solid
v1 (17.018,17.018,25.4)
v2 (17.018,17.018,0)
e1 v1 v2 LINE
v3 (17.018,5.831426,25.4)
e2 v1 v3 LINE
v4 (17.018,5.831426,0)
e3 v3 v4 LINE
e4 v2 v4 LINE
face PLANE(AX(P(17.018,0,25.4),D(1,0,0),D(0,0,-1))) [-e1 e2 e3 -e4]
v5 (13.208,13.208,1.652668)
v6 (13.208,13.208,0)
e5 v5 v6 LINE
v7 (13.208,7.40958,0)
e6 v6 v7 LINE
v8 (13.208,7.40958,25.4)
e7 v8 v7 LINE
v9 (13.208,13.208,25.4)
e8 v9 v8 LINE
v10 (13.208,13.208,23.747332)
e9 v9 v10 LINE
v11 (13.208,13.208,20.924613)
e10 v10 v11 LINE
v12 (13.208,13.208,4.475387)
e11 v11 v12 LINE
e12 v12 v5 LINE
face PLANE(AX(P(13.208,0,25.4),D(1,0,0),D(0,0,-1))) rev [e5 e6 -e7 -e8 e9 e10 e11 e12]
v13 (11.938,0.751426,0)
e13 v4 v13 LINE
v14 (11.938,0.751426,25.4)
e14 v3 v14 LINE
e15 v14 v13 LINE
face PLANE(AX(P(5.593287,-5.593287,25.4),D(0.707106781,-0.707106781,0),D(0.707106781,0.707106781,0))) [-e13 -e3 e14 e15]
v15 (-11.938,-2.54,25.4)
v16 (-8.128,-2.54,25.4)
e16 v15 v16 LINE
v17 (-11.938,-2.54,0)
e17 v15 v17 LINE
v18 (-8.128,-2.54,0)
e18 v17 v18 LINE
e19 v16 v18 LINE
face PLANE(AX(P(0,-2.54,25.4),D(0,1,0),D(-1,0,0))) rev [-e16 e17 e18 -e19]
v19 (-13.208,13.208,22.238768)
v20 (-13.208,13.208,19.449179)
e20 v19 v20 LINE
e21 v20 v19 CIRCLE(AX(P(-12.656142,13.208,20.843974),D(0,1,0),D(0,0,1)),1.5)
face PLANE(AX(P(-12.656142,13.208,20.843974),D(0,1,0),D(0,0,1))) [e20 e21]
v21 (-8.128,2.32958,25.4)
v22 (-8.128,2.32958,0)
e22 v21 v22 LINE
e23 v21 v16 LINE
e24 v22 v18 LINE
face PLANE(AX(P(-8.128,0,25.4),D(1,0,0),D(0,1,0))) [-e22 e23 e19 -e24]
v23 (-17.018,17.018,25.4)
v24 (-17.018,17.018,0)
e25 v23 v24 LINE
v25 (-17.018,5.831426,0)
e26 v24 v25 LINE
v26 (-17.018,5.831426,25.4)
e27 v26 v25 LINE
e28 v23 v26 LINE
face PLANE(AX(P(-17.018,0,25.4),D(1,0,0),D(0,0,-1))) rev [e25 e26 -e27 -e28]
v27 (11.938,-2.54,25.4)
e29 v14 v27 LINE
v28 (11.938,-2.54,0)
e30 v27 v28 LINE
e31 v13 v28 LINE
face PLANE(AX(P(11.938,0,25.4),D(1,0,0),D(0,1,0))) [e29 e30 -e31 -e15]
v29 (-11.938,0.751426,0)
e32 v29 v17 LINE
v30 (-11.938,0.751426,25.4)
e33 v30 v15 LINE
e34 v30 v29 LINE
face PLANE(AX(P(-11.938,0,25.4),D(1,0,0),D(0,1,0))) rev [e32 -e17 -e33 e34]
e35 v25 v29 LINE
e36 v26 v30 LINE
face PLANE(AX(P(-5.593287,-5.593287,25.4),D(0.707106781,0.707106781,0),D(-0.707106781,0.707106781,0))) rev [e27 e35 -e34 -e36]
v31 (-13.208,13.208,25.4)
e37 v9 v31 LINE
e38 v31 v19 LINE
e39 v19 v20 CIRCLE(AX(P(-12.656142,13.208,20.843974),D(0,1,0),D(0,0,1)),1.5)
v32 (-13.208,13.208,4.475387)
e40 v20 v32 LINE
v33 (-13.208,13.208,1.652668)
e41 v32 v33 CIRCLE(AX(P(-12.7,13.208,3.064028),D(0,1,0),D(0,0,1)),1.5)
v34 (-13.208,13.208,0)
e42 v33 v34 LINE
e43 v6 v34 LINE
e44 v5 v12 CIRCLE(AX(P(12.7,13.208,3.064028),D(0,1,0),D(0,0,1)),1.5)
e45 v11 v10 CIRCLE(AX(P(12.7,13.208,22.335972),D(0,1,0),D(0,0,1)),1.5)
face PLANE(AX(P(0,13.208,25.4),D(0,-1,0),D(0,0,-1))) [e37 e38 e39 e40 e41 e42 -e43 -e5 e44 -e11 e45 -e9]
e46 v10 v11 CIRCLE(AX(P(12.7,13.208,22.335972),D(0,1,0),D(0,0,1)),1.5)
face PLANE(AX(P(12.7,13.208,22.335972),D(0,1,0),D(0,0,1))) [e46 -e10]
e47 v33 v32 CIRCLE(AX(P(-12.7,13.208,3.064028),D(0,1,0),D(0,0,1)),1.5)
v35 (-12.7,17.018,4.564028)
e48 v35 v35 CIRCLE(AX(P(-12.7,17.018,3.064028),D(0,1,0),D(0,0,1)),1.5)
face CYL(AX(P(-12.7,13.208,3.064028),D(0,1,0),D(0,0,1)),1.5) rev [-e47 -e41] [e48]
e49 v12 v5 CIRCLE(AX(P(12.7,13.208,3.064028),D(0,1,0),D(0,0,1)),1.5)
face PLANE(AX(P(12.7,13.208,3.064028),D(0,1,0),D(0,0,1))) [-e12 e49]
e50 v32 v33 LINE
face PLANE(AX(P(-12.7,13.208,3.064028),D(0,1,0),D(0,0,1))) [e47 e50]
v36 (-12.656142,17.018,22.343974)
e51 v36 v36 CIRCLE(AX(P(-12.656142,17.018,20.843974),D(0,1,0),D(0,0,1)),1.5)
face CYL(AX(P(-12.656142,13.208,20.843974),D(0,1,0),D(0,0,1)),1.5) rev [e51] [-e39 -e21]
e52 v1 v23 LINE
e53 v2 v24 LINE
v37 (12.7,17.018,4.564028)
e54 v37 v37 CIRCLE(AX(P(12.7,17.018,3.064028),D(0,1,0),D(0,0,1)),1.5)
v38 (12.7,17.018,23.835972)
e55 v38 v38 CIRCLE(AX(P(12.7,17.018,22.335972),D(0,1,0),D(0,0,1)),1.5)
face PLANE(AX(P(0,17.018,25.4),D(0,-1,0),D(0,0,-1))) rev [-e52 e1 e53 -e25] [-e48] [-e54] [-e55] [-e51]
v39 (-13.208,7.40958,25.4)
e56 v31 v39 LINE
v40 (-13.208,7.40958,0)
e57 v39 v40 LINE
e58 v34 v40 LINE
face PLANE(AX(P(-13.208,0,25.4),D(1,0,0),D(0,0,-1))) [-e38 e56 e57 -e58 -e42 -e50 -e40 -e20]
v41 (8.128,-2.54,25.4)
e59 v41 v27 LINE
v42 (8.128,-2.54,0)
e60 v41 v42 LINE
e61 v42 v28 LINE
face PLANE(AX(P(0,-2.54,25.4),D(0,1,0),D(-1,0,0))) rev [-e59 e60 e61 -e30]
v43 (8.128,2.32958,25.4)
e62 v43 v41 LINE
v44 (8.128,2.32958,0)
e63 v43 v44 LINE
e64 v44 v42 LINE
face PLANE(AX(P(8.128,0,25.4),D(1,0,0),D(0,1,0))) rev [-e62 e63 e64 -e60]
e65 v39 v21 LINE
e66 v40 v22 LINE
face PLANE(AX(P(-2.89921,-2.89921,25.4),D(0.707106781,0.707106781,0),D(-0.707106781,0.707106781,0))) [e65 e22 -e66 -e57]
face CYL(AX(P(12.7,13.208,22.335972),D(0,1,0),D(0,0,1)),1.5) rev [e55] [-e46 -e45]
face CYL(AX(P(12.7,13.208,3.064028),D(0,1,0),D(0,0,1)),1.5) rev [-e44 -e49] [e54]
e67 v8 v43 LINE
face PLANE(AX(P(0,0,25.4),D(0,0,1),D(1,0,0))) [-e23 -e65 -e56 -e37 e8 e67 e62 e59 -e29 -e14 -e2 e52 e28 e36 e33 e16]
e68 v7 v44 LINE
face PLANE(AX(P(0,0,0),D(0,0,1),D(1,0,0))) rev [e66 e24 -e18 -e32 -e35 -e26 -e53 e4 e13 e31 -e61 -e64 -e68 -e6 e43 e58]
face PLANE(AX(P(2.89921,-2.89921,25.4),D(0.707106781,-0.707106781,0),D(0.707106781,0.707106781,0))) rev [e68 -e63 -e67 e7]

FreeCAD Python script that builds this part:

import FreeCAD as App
import Part
import Sketcher
from FreeCAD import Vector
Q = App.Units.Quantity

doc = App.newDocument("Part")
body = doc.addObject("PartDesign::Body", "Body")

# Sketch on XY plane
sketch1 = body.newObject("Sketcher::SketchObject", "Sketch")
sketch1.AttachmentSupport = (doc.getObject("XY_Plane"), [""])
sketch1.MapMode = "FlatFace"
sketch1.addGeometry([
    Part.LineSegment(Vector(-13.2, 13.2, 0), Vector(13.2, 13.2, 0)),  # 0
    Part.LineSegment(Vector(13.2, 13.2, 0), Vector(13.2, 7.4, 0)),  # 1
    Part.LineSegment(Vector(13.2, 7.4, 0), Vector(8.1, 2.3, 0)),  # 2
    Part.LineSegment(Vector(8.1, 2.3, 0), Vector(8.1, -2.5, 0)),  # 3
    Part.LineSegment(Vector(8.1, -2.5, 0), Vector(11.9, -2.5, 0)),  # 4
    Part.LineSegment(Vector(11.9, -2.5, 0), Vector(11.9, 0.8, 0)),  # 5
    Part.LineSegment(Vector(11.9, 0.8, 0), Vector(17, 5.8, 0)),  # 6
    Part.LineSegment(Vector(17, 5.8, 0), Vector(17, 17, 0)),  # 7
    Part.LineSegment(Vector(17, 17, 0), Vector(-17, 17, 0)),  # 8
    Part.LineSegment(Vector(-17, 17, 0), Vector(-17, 5.8, 0)),  # 9
    Part.LineSegment(Vector(-17, 5.8, 0), Vector(-11.9, 0.8, 0)),  # 10
    Part.LineSegment(Vector(-11.9, 0.8, 0), Vector(-11.9, -2.5, 0)),  # 11
    Part.LineSegment(Vector(-11.9, -2.5, 0), Vector(-8.1, -2.5, 0)),  # 12
    Part.LineSegment(Vector(-8.1, -2.5, 0), Vector(-8.1, 2.3, 0)),  # 13
    Part.LineSegment(Vector(-8.1, 2.3, 0), Vector(-13.2, 7.4, 0)),  # 14
    Part.LineSegment(Vector(-13.2, 7.4, 0), Vector(-13.2, 13.2, 0)),  # 15
], False)
sketch1.addConstraint([
    Sketcher.Constraint("Coincident", 0, 2, 1, 1),
    Sketcher.Constraint("Coincident", 1, 2, 2, 1),
    Sketcher.Constraint("Coincident", 2, 2, 3, 1),
    Sketcher.Constraint("Coincident", 3, 2, 4, 1),
    Sketcher.Constraint("Coincident", 4, 2, 5, 1),
    Sketcher.Constraint("Coincident", 5, 2, 6, 1),
    Sketcher.Constraint("Coincident", 6, 2, 7, 1),
    Sketcher.Constraint("Coincident", 7, 2, 8, 1),
    Sketcher.Constraint("Coincident", 8, 2, 9, 1),
    Sketcher.Constraint("Coincident", 9, 2, 10, 1),
    Sketcher.Constraint("Coincident", 10, 2, 11, 1),
    Sketcher.Constraint("Coincident", 11, 2, 12, 1),
    Sketcher.Constraint("Coincident", 12, 2, 13, 1),
    Sketcher.Constraint("Coincident", 13, 2, 14, 1),
    Sketcher.Constraint("Coincident", 14, 2, 15, 1),
    Sketcher.Constraint("Coincident", 15, 2, 0, 1),
    Sketcher.Constraint("Horizontal", 0),
    Sketcher.Constraint("Vertical", 1),
    Sketcher.Constraint("Vertical", 3),
    Sketcher.Constraint("Horizontal", 4),
    Sketcher.Constraint("Vertical", 5),
    Sketcher.Constraint("Vertical", 7),
    Sketcher.Constraint("Horizontal", 8),
    Sketcher.Constraint("Vertical", 9),
    Sketcher.Constraint("Vertical", 11),
    Sketcher.Constraint("Horizontal", 12),
    Sketcher.Constraint("Vertical", 13),
    Sketcher.Constraint("Vertical", 15),
    Sketcher.Constraint("Symmetric", 6, 2, 9, 2, -2),
    Sketcher.Constraint("Symmetric", 5, 2, 10, 2, -2),
    Sketcher.Constraint("Symmetric", 3, 2, 12, 2, -2),
    Sketcher.Constraint("Symmetric", 1, 2, 14, 2, -2),
    Sketcher.Constraint("Parallel", 2, 6),
    Sketcher.Constraint("Perpendicular", 6, 10),
    Sketcher.Constraint("Parallel", 10, 14),
    Sketcher.Constraint("Equal", 2, 6),
    Sketcher.Constraint("DistanceX", 0, 1, 0, 2, Q("1.04 in")),
    Sketcher.Constraint("DistanceX", 4, 1, 4, 2, Q("0.15 in")),
    Sketcher.Constraint("DistanceY", 3, 2, -1, 1, Q("0.1 in")),
    Sketcher.Constraint("DistanceX", 2, 2, 1, 2, Q("0.2 in")),
    Sketcher.Constraint("DistanceY", -1, 1, 0, 2, Q("0.52 in")),
    Sketcher.Constraint("DistanceY", -1, 1, 7, 2, Q("0.67 in")),
    Sketcher.Constraint("DistanceY", 1, 2, 1, 1, Q("5.79842 mm")),
    Sketcher.Constraint("DistanceY", 5, 1, 5, 2, Q("3.291426 mm")),
])
pad1 = body.newObject("PartDesign::Pad", "Pad")
pad1.Profile = sketch1
pad1.Length = Q("1 in")

# Sketch on XZ plane
sketch2 = body.newObject("Sketcher::SketchObject", "Sketch001")
sketch2.AttachmentSupport = (doc.getObject("XZ_Plane"), [""])
sketch2.MapMode = "FlatFace"
sketch2.AttachmentOffset = App.Placement(Vector(0, 0, -0.67 * 25.4), App.Rotation())
sketch2.addGeometry([
    Part.Circle(Vector(-12.7, 3.1, 0), Vector(0, 0, 1), 1.5),
    Part.Circle(Vector(-12.7, 20.8, 0), Vector(0, 0, 1), 1.5),
    Part.Circle(Vector(12.7, 22.3, 0), Vector(0, 0, 1), 1.5),
    Part.Circle(Vector(12.7, 3.1, 0), Vector(0, 0, 1), 1.5),
], False)
sketch2.addConstraint([
    Sketcher.Constraint("Equal", 0, 1),
    Sketcher.Constraint("Equal", 1, 2),
    Sketcher.Constraint("Equal", 2, 3),
    Sketcher.Constraint("Symmetric", 0, 3, 3, 3, -2),
    Sketcher.Constraint("Vertical", 2, 3, 3, 3),
    Sketcher.Constraint("DistanceX", 0, 3, 2, 3, Q("1 in")),
    Sketcher.Constraint("Diameter", 0, Q("3 mm")),
    Sketcher.Constraint("DistanceY", 1, 3, 2, 3, Q("1.491999 mm")),
    Sketcher.Constraint("DistanceY", -1, 1, 0, 3, Q("3.064028 mm")),
    Sketcher.Constraint("DistanceX", 1, 3, -1, 1, Q("12.656142 mm")),
    Sketcher.Constraint("DistanceY", -1, 1, 1, 3, Q("20.843974 mm")),
])
pocket1 = body.newObject("PartDesign::Pocket", "Pocket")
pocket1.Profile = sketch2
pocket1.Length = Q("0.15 in")
pocket1.Reversed = True

doc.recompute()
